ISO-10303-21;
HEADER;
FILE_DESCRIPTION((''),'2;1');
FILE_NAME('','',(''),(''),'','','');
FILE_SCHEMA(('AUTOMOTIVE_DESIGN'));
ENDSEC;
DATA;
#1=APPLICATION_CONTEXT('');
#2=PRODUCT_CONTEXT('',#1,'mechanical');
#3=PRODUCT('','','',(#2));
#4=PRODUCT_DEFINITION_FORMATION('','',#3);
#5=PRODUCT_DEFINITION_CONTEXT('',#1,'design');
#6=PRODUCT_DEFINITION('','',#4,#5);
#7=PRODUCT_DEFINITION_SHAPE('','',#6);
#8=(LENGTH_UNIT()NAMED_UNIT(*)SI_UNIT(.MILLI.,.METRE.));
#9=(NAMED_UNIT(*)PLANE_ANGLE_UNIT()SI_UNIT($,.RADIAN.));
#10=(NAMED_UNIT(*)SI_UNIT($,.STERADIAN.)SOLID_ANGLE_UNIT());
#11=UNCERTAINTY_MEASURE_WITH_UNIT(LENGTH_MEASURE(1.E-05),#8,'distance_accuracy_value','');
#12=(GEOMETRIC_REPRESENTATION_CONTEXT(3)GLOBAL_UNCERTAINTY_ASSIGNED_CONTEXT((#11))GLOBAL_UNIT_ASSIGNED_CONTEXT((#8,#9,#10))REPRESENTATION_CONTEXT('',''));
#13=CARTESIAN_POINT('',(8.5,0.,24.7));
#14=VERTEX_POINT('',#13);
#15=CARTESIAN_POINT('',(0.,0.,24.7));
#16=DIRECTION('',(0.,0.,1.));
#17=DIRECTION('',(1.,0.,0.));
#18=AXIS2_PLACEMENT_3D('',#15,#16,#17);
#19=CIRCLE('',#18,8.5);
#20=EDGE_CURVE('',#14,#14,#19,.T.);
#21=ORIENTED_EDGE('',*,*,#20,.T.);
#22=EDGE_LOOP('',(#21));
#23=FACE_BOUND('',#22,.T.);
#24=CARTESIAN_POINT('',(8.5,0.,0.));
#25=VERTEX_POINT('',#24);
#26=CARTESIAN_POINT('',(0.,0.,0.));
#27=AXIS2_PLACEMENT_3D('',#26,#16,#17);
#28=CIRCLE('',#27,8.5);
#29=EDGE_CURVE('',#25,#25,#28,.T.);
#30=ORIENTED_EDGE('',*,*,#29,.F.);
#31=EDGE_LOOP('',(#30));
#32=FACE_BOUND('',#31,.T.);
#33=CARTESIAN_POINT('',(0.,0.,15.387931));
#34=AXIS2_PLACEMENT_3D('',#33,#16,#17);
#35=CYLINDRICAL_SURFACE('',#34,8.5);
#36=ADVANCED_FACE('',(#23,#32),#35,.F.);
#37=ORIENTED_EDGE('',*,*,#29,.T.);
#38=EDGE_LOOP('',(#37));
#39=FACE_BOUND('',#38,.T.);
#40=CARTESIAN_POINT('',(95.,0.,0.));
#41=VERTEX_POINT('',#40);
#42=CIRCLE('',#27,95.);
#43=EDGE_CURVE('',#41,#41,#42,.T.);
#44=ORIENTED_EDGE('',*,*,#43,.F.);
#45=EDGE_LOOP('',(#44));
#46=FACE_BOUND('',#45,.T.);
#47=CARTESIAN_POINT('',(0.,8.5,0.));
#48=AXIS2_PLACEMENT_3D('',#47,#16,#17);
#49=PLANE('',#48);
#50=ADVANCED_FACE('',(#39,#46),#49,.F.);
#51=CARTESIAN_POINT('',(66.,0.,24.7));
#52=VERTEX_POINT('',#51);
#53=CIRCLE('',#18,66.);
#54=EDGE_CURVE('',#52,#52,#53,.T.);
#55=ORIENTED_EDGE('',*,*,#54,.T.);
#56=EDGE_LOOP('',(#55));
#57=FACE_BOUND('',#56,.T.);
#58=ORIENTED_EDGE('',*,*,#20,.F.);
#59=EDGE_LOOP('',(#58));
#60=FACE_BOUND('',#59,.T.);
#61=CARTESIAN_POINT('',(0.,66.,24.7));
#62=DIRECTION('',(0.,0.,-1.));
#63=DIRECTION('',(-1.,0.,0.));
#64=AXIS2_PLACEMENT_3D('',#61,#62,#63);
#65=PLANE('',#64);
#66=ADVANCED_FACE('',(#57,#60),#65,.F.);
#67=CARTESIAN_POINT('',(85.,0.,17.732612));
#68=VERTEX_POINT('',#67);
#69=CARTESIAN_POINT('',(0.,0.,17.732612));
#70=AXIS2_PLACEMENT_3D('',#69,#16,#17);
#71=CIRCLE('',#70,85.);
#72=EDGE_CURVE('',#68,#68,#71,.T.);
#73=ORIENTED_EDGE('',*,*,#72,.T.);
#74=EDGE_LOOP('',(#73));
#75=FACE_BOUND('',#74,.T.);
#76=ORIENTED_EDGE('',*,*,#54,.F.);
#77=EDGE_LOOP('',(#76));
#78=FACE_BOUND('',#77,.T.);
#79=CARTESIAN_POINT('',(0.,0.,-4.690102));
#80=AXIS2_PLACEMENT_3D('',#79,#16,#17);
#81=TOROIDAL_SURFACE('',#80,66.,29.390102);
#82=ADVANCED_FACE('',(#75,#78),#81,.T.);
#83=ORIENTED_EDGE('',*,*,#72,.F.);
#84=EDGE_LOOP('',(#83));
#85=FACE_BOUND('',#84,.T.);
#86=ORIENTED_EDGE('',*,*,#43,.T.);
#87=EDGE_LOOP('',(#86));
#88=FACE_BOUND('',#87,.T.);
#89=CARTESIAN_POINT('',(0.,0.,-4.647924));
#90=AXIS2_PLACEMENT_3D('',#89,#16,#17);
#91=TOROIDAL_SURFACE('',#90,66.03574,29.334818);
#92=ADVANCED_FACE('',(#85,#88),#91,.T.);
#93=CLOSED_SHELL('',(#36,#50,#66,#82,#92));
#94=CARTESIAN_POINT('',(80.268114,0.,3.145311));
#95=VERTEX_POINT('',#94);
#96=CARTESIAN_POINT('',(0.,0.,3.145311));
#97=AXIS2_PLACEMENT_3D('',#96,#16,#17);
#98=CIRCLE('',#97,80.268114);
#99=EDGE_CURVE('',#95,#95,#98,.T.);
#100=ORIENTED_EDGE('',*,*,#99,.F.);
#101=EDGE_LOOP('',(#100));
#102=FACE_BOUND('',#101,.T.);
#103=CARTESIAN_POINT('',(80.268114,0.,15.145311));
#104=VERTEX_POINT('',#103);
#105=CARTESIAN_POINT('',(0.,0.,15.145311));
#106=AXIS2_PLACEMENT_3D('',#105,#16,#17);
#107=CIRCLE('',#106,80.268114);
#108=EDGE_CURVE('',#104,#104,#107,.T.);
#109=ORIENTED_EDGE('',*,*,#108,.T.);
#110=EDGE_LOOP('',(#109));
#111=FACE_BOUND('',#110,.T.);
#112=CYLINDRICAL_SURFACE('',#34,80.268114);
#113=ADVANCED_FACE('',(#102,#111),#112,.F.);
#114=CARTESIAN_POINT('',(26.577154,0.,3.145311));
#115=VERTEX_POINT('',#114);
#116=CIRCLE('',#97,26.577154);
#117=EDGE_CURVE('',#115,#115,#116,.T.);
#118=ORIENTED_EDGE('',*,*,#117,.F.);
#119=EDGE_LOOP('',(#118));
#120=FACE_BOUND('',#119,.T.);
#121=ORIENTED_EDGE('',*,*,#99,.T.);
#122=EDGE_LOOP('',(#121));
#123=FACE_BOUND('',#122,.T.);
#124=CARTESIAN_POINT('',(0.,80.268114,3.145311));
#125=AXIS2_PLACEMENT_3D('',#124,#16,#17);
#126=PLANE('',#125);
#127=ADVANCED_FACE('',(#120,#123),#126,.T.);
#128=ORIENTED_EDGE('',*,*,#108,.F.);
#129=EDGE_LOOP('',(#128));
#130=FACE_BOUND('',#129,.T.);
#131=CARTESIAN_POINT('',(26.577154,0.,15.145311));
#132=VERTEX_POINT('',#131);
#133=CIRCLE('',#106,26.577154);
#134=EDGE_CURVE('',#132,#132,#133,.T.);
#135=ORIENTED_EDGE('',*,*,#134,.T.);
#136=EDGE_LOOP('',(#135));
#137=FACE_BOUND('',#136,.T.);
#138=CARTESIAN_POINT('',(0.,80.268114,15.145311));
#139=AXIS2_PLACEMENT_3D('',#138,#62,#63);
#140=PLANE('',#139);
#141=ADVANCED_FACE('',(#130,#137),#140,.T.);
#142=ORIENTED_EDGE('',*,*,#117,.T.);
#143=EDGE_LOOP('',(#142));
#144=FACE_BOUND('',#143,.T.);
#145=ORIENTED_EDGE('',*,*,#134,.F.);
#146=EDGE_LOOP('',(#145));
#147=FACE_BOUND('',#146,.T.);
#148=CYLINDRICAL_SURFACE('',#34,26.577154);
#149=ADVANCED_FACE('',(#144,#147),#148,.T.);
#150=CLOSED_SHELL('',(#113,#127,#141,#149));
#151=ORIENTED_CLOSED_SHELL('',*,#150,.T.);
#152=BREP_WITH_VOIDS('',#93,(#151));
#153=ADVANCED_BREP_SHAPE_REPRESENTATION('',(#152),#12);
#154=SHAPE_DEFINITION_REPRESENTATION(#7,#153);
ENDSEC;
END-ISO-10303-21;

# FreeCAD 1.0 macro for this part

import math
import FreeCAD as App
import Part
import Sketcher

V = App.Vector
Q = App.Units.Quantity

doc = App.newDocument("Part")
body = doc.addObject("PartDesign::Body", "Body")

# Sketch on YZ plane
sketch1 = body.newObject("Sketcher::SketchObject", "Sketch")
sketch1.AttachmentSupport = (doc.getObject("YZ_Plane"), [""])
sketch1.MapMode = "FlatFace"
sketch1.addGeometry([
    Part.LineSegment(V(8, 25, 0), V(8, 0, 0)),  # 0
    Part.LineSegment(V(8, 0, 0), V(95, 0, 0)),  # 1
    Part.ArcOfCircle(Part.Circle(V(66, -5, 0), V(0, 0, 1), 29), math.radians(9), math.radians(50)),  # 2
    Part.ArcOfCircle(Part.Circle(V(66, -5, 0), V(0, 0, 1), 29), math.radians(50), math.radians(90)),  # 3
    Part.LineSegment(V(66, 25, 0), V(8, 25, 0)),  # 4
    Part.LineSegment(V(27, 15, 0), V(80, 15, 0)),  # 5
    Part.LineSegment(V(80, 15, 0), V(80, 3, 0)),  # 6
    Part.LineSegment(V(80, 3, 0), V(27, 3, 0)),  # 7
    Part.LineSegment(V(27, 3, 0), V(27, 15, 0)),  # 8
], False)
sketch1.addConstraint([
    Sketcher.Constraint("Coincident", 0, 2, 1, 1),
    Sketcher.Constraint("Coincident", 1, 2, 2, 1),
    Sketcher.Constraint("Tangent", 2, 2, 3, 1),
    Sketcher.Constraint("Tangent", 3, 2, 4, 1),
    Sketcher.Constraint("Coincident", 4, 2, 0, 1),
    Sketcher.Constraint("Coincident", 5, 2, 6, 1),
    Sketcher.Constraint("Coincident", 6, 2, 7, 1),
    Sketcher.Constraint("Coincident", 7, 2, 8, 1),
    Sketcher.Constraint("Coincident", 8, 2, 5, 1),
    Sketcher.Constraint("Vertical", 0),
    Sketcher.Constraint("Horizontal", 1),
    Sketcher.Constraint("Horizontal", 4),
    Sketcher.Constraint("Horizontal", 5),
    Sketcher.Constraint("Vertical", 6),
    Sketcher.Constraint("Horizontal", 7),
    Sketcher.Constraint("Vertical", 8),
    Sketcher.Constraint("PointOnObject", 0, 2, -1),
    Sketcher.Constraint("DistanceY", 6, 2, 6, 1, Q("12 mm")),
    Sketcher.Constraint("DistanceX", 1, 1, 1, 2, Q("86.5 mm")),
    Sketcher.Constraint("DistanceX", 4, 2, 4, 1, Q("57.5 mm")),
    Sketcher.Constraint("DistanceY", 0, 2, 0, 1, Q("24.7 mm")),
    Sketcher.Constraint("DistanceX", -1, 1, 3, 3, Q("66 mm")),
    Sketcher.Constraint("DistanceX", -1, 1, 2, 2, Q("85 mm")),
    Sketcher.Constraint("Radius", 2, Q("29.334818 mm")),
    Sketcher.Constraint("DistanceX", 5, 1, 5, 2, Q("53.69096 mm")),
    Sketcher.Constraint("DistanceY", 5, 2, 2, 2, Q("2.587301 mm")),
    Sketcher.Constraint("DistanceX", -1, 1, 5, 2, Q("80.268114 mm")),
])
revolution = body.newObject("PartDesign::Revolution", "Revolution")
revolution.Profile = sketch1
revolution.ReferenceAxis = (sketch1, ["V_Axis"])
revolution.Angle = 360

doc.recompute()
